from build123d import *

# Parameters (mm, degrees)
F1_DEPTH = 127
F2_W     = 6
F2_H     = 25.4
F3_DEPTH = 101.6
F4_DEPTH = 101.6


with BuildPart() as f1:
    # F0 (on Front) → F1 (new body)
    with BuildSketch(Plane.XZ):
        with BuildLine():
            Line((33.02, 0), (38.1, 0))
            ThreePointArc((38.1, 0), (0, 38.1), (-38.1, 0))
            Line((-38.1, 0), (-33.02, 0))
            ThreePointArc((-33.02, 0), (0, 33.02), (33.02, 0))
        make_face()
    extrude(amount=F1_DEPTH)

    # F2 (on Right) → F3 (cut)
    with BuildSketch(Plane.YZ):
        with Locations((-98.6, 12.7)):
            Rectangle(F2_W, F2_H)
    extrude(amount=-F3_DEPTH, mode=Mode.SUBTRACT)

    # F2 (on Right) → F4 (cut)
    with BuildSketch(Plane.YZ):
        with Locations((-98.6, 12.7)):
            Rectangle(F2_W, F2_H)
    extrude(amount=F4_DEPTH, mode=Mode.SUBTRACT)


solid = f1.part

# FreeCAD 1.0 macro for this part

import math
import FreeCAD as App
import Part
import Sketcher
Q = App.Units.Quantity

doc = App.newDocument("Part")
body = doc.addObject("PartDesign::Body", "Body")

sketch1 = body.newObject("Sketcher::SketchObject", "Sketch")
sketch1.AttachmentSupport = (doc.getObject("XZ_Plane"), [""])
sketch1.MapMode = "FlatFace"
sketch1.addGeometry(Part.LineSegment(App.Vector(33.02, 0, 0), App.Vector(38.1, 0, 0)), False)
sketch1.addGeometry(Part.ArcOfCircle(Part.Circle(App.Vector(0, 0, 0), App.Vector(0, 0, 1), 38.1), math.radians(0), math.radians(180)), False)
sketch1.addGeometry(Part.LineSegment(App.Vector(-38.1, 0, 0), App.Vector(-33.02, 0, 0)), False)
sketch1.addGeometry(Part.ArcOfCircle(Part.Circle(App.Vector(0, 0, 0), App.Vector(0, 0, 1), 33.02), math.radians(0), math.radians(180)), False)
sketch1.addConstraint(Sketcher.Constraint("Coincident", 0, 2, 1, 1))
sketch1.addConstraint(Sketcher.Constraint("Coincident", 1, 2, 2, 1))
sketch1.addConstraint(Sketcher.Constraint("Coincident", 2, 2, 3, 2))
sketch1.addConstraint(Sketcher.Constraint("Coincident", 3, 1, 0, 1))
sketch1.addConstraint(Sketcher.Constraint("Horizontal", 0))
sketch1.addConstraint(Sketcher.Constraint("Horizontal", 2))
sketch1.addConstraint(Sketcher.Constraint("Coincident", 1, 3, -1, 1))
sketch1.addConstraint(Sketcher.Constraint("Coincident", 3, 3, -1, 1))
sketch1.addConstraint(Sketcher.Constraint("PointOnObject", 0, 2, -1))
sketch1.addConstraint(Sketcher.Constraint("PointOnObject", 1, 2, -1))
sketch1.addConstraint(Sketcher.Constraint("Radius", 1, Q("1.5 in")))
sketch1.addConstraint(Sketcher.Constraint("Radius", 3, Q("1.3 in")))
pad1 = body.newObject("PartDesign::Pad", "Pad")
pad1.Profile = sketch1
pad1.Length = Q("5 in")

sketch2 = body.newObject("Sketcher::SketchObject", "Sketch001")
sketch2.AttachmentSupport = (doc.getObject("YZ_Plane"), [""])
sketch2.MapMode = "FlatFace"
sketch2.addGeometry(Part.LineSegment(App.Vector(-101.6, 25.4, 0), App.Vector(-101.6, 0, 0)), False)
sketch2.addGeometry(Part.LineSegment(App.Vector(-101.6, 0, 0), App.Vector(-95.6, 0, 0)), False)
sketch2.addGeometry(Part.LineSegment(App.Vector(-95.6, 0, 0), App.Vector(-95.6, 25.4, 0)), False)
sketch2.addGeometry(Part.LineSegment(App.Vector(-95.6, 25.4, 0), App.Vector(-101.6, 25.4, 0)), False)
sketch2.addConstraint(Sketcher.Constraint("Coincident", 0, 2, 1, 1))
sketch2.addConstraint(Sketcher.Constraint("Coincident", 1, 2, 2, 1))
sketch2.addConstraint(Sketcher.Constraint("Coincident", 2, 2, 3, 1))
sketch2.addConstraint(Sketcher.Constraint("Coincident", 3, 2, 0, 1))
sketch2.addConstraint(Sketcher.Constraint("Vertical", 0))
sketch2.addConstraint(Sketcher.Constraint("Horizontal", 1))
sketch2.addConstraint(Sketcher.Constraint("Vertical", 2))
sketch2.addConstraint(Sketcher.Constraint("Horizontal", 3))
sketch2.addConstraint(Sketcher.Constraint("PointOnObject", 0, 2, -1))
sketch2.addConstraint(Sketcher.Constraint("DistanceY", 0, 2, 0, 1, Q("1 in")))
sketch2.addConstraint(Sketcher.Constraint("DistanceX", 0, 2, -1, 1, Q("4 in")))
sketch2.addConstraint(Sketcher.Constraint("DistanceX", 1, 1, 1, 2, 6.0))
pocket1 = body.newObject("PartDesign::Pocket", "Pocket")
pocket1.Profile = sketch2
pocket1.Length = Q("4 in")

sketch3 = body.newObject("Sketcher::SketchObject", "Sketch002")
sketch3.AttachmentSupport = (doc.getObject("YZ_Plane"), [""])
sketch3.MapMode = "FlatFace"
sketch3.addGeometry(Part.LineSegment(App.Vector(-101.6, 25.4, 0), App.Vector(-101.6, 0, 0)), False)
sketch3.addGeometry(Part.LineSegment(App.Vector(-101.6, 0, 0), App.Vector(-95.6, 0, 0)), False)
sketch3.addGeometry(Part.LineSegment(App.Vector(-95.6, 0, 0), App.Vector(-95.6, 25.4, 0)), False)
sketch3.addGeometry(Part.LineSegment(App.Vector(-95.6, 25.4, 0), App.Vector(-101.6, 25.4, 0)), False)
sketch3.addConstraint(Sketcher.Constraint("Coincident", 0, 2, 1, 1))
sketch3.addConstraint(Sketcher.Constraint("Coincident", 1, 2, 2, 1))
sketch3.addConstraint(Sketcher.Constraint("Coincident", 2, 2, 3, 1))
sketch3.addConstraint(Sketcher.Constraint("Coincident", 3, 2, 0, 1))
sketch3.addConstraint(Sketcher.Constraint("Vertical", 0))
sketch3.addConstraint(Sketcher.Constraint("Horizontal", 1))
sketch3.addConstraint(Sketcher.Constraint("Vertical", 2))
sketch3.addConstraint(Sketcher.Constraint("Horizontal", 3))
sketch3.addConstraint(Sketcher.Constraint("PointOnObject", 0, 2, -1))
sketch3.addConstraint(Sketcher.Constraint("DistanceY", 0, 2, 0, 1, Q("1 in")))
sketch3.addConstraint(Sketcher.Constraint("DistanceX", 0, 2, -1, 1, Q("4 in")))
sketch3.addConstraint(Sketcher.Constraint("DistanceX", 1, 1, 1, 2, 6.0))
pocket2 = body.newObject("PartDesign::Pocket", "Pocket001")
pocket2.Profile = sketch3
pocket2.Length = Q("4 in")
pocket2.Reversed = True

doc.recompute()
